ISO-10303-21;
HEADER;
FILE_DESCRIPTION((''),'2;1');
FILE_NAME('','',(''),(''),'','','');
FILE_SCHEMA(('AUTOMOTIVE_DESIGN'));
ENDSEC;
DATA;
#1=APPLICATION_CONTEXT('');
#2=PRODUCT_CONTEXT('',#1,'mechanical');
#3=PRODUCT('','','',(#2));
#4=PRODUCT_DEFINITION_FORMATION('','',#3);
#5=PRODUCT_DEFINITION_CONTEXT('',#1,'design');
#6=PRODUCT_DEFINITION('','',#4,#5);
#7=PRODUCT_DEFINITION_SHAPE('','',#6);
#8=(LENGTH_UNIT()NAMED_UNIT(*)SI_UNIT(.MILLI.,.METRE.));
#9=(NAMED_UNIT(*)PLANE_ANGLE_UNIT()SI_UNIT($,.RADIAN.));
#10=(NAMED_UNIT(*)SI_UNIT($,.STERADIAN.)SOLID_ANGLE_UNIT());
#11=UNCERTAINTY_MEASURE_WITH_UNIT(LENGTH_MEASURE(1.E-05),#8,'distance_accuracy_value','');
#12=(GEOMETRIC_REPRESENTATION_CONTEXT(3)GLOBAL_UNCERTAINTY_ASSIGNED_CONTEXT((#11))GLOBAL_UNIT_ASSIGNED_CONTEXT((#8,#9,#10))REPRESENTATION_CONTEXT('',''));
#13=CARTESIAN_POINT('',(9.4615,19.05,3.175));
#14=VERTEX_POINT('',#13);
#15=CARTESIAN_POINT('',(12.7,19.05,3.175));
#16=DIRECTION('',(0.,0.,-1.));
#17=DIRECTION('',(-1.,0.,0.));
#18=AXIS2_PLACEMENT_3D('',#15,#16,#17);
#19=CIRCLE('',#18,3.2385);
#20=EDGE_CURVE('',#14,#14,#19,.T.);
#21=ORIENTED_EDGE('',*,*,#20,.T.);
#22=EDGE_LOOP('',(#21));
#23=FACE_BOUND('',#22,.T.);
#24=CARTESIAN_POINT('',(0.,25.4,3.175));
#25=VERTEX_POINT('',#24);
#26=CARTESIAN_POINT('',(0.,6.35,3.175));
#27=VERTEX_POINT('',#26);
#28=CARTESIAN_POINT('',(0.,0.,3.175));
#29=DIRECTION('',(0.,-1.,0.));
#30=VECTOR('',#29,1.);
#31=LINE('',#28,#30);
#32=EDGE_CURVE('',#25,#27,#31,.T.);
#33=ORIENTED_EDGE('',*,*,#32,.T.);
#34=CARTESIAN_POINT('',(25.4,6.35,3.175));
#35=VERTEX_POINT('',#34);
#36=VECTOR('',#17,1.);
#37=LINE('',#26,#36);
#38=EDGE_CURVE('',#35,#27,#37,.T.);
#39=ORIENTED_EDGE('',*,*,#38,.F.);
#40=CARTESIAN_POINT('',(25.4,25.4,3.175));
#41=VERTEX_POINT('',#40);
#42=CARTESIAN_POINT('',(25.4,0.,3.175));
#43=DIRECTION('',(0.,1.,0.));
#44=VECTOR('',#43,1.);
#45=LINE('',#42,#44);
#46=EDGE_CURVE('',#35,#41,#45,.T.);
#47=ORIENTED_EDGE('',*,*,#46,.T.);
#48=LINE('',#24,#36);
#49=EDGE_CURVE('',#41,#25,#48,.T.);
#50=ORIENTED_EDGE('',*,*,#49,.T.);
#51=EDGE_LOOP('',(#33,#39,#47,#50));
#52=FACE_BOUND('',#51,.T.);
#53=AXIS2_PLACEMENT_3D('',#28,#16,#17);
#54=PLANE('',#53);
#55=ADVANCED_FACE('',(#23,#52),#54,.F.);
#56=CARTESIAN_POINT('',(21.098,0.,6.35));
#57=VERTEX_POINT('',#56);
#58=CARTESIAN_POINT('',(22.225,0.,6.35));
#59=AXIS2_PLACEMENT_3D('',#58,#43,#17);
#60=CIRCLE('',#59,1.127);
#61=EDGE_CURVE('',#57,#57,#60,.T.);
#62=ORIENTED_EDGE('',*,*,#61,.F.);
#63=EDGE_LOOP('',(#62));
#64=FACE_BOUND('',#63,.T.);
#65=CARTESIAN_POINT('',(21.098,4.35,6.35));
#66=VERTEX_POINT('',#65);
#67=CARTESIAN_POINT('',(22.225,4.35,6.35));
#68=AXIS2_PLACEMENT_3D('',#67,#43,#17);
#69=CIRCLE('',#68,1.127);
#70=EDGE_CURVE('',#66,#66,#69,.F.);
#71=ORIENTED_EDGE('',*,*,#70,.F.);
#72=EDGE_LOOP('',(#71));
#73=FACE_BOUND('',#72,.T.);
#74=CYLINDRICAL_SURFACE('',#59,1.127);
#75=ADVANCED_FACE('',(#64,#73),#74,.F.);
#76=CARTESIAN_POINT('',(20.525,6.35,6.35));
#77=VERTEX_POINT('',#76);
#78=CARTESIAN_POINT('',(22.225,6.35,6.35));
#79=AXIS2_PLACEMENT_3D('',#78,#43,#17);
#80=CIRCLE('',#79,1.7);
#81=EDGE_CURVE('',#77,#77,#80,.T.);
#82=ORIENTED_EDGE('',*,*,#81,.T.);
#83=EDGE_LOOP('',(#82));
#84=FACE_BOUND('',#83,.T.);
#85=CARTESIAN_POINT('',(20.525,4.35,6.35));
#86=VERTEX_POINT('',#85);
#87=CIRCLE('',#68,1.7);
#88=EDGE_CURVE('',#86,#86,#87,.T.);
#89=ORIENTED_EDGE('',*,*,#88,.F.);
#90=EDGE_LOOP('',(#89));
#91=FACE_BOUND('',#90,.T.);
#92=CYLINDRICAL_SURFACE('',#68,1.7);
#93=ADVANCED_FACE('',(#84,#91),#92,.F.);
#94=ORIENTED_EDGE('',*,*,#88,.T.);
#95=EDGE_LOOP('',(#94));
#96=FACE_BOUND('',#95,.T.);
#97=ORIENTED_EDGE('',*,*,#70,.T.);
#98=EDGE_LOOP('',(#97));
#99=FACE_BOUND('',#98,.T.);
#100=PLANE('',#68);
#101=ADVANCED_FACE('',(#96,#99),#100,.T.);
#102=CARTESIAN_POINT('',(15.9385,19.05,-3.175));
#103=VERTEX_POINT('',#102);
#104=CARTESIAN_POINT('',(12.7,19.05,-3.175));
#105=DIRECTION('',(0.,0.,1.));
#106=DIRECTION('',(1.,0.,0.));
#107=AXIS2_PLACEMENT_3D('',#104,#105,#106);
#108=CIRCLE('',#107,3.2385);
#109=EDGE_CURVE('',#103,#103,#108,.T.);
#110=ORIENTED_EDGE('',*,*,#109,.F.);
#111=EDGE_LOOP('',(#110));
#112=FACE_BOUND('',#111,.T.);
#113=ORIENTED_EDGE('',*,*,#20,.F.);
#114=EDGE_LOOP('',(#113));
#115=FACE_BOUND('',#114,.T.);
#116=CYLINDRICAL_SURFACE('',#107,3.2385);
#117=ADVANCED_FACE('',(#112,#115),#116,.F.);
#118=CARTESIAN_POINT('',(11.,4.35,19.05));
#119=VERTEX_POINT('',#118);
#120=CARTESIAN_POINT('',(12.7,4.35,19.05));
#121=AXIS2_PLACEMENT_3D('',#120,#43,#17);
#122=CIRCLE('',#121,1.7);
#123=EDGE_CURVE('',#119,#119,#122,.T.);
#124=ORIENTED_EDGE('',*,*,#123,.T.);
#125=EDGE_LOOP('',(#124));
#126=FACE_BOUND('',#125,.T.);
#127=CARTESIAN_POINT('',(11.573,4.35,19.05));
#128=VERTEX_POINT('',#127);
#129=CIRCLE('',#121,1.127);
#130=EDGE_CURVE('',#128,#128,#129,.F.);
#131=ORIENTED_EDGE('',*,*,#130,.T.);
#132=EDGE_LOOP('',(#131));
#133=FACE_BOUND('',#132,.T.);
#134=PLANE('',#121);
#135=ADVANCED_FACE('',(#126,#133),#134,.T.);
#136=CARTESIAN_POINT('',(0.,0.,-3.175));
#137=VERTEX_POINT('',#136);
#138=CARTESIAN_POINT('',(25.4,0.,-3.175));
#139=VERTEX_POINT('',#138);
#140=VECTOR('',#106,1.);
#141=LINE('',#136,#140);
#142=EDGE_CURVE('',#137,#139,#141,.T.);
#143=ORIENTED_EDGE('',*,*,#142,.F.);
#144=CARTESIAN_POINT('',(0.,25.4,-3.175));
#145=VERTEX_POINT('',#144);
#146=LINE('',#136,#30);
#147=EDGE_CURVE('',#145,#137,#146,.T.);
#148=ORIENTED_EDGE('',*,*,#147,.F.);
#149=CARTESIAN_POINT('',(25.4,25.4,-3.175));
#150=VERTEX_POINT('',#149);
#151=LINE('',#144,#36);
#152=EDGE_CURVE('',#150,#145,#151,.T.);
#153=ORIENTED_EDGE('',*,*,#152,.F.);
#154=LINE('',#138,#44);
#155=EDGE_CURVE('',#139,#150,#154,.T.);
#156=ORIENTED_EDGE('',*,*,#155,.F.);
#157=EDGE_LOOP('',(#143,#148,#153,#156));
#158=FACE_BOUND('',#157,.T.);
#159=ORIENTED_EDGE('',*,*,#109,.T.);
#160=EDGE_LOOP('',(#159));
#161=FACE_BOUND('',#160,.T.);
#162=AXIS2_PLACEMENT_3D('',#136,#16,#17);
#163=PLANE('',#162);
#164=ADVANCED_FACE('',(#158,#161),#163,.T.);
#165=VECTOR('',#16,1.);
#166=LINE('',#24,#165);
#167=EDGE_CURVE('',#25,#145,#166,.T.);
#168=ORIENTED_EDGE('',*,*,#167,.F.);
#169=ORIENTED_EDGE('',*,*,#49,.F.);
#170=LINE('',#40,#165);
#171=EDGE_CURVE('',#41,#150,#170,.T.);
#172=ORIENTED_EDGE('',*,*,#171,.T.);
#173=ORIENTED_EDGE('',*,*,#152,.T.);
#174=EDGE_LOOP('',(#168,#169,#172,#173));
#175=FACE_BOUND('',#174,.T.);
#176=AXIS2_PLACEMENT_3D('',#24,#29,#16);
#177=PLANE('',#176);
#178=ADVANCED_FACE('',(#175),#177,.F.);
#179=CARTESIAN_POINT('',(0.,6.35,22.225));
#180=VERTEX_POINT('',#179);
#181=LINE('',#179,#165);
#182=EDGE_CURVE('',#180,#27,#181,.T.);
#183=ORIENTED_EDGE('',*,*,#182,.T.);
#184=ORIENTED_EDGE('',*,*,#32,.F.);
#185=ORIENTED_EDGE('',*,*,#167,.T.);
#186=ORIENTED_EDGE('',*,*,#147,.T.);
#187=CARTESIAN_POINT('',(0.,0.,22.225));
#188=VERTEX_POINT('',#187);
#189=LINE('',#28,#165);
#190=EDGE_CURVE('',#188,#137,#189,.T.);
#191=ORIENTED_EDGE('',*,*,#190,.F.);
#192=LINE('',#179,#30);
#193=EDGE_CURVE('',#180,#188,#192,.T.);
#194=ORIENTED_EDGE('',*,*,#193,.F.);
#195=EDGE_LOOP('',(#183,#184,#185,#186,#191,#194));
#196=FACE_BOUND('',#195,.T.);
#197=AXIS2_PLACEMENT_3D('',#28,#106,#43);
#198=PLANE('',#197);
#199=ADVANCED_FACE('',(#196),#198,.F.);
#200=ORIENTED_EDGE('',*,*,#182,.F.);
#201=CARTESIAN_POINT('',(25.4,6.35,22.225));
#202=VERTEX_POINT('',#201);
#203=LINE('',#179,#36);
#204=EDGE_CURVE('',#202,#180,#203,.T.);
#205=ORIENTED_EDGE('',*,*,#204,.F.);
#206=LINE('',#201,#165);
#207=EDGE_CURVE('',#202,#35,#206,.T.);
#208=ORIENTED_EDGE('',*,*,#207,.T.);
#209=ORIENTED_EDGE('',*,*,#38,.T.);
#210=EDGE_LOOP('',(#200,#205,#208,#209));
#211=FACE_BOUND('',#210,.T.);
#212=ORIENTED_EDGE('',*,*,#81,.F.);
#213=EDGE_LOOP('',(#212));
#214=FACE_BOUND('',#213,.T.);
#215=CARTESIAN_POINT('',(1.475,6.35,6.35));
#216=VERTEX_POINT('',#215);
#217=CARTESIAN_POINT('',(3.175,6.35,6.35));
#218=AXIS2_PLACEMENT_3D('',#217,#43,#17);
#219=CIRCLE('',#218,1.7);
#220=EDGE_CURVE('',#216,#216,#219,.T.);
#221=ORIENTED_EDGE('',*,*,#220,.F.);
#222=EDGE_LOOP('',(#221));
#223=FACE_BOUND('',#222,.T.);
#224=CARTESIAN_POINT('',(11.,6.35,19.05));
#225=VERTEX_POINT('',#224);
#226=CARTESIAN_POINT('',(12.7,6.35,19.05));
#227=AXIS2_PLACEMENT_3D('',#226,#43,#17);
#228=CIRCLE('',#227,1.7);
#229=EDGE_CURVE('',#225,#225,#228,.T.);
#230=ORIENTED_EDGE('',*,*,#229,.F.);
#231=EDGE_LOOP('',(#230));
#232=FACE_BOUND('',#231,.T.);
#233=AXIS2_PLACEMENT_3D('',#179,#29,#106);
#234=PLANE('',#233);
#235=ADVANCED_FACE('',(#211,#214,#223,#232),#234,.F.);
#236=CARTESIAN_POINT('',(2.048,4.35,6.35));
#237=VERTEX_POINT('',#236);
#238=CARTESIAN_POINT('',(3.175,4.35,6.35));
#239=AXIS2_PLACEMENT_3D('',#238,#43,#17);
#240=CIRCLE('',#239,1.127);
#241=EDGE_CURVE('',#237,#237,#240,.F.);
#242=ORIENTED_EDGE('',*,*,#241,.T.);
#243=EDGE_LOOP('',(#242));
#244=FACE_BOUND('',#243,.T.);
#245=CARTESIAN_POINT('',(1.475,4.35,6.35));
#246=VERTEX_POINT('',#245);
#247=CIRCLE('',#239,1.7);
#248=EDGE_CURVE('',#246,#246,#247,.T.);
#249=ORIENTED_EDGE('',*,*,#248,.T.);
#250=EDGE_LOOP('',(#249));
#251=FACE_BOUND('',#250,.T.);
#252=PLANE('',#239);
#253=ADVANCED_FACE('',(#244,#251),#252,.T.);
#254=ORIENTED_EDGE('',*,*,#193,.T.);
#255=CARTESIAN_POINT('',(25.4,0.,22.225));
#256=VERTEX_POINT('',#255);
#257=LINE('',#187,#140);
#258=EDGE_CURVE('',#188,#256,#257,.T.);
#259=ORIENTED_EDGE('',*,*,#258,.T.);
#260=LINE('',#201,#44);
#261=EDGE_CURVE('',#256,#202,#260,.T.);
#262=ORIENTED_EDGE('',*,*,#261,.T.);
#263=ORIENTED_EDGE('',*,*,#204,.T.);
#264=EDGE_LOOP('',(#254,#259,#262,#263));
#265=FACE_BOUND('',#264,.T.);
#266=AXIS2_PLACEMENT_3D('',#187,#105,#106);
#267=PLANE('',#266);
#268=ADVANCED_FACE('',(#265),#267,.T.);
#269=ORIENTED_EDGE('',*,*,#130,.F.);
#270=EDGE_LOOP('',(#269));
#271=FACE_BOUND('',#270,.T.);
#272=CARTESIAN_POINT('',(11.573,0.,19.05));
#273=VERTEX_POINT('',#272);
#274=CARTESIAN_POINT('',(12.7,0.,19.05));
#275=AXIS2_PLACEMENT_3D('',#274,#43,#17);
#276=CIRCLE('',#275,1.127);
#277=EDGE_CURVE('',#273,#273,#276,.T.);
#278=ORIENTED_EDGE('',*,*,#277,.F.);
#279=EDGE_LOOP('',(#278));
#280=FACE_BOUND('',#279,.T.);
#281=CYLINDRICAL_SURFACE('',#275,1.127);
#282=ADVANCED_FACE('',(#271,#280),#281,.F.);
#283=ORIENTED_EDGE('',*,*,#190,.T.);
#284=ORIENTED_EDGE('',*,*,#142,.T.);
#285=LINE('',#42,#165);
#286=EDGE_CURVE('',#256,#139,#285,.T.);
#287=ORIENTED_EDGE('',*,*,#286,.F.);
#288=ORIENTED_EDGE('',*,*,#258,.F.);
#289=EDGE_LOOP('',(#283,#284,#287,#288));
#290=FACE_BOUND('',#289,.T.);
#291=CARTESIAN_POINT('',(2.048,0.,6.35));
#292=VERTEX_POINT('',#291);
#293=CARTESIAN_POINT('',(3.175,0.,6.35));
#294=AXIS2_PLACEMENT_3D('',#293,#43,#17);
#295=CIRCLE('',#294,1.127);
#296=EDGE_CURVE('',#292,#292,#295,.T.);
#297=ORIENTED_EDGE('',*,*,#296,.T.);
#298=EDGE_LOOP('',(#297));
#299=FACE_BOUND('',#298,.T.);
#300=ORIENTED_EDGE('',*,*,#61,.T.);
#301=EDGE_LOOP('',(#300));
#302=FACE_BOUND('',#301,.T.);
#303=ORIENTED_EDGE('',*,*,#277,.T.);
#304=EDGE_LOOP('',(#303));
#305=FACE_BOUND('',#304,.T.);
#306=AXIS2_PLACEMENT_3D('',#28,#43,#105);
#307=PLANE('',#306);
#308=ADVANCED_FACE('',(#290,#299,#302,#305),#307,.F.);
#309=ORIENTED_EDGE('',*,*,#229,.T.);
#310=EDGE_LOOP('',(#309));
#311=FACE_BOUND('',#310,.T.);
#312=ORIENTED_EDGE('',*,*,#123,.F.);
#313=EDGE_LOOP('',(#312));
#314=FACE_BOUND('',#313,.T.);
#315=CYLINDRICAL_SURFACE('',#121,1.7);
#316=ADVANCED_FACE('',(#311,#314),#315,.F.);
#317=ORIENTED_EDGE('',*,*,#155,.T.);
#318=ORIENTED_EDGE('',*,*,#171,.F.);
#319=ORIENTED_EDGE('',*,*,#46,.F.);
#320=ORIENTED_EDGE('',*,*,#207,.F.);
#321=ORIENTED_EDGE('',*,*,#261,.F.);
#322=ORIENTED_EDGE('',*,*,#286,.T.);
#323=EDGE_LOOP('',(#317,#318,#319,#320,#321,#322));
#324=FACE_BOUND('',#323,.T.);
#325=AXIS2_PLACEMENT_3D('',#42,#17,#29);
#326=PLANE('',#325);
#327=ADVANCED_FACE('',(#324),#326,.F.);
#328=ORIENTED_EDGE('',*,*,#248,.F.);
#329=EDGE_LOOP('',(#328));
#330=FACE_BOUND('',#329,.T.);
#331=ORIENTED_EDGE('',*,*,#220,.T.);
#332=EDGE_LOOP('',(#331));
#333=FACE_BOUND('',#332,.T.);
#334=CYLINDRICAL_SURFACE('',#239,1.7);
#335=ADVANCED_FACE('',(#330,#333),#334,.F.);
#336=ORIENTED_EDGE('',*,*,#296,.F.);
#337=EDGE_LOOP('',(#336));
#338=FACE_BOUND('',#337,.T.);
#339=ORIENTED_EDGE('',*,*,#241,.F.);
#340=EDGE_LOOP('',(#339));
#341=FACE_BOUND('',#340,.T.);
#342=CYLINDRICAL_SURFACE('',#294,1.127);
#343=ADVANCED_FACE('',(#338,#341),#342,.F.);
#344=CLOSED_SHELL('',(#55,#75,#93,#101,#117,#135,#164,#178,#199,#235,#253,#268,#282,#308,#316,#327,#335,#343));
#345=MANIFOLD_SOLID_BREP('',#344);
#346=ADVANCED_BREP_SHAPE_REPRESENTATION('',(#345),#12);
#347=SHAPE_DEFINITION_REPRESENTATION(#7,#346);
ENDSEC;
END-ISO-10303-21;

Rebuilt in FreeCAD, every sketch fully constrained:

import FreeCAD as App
import Part
import Sketcher
from FreeCAD import Vector
Q = App.Units.Quantity


def add_polygon(sketch, points):
    """Adds a closed chain of lines whose ends are joined by coincident constraints."""
    first, n = sketch.GeometryCount, len(points)
    for a, b in zip(points, points[1:] + points[:1]):
        sketch.addGeometry(Part.LineSegment(App.Vector(*a, 0), App.Vector(*b, 0)), False)
    for i in range(n):
        sketch.addConstraint(Sketcher.Constraint("Coincident", first + i, 2, first + (i + 1) % n, 1))

doc = App.newDocument("Part")
params = doc.addObject("Spreadsheet::Sheet", "Params")
for row, (alias, value) in enumerate([
    ("sketch1_width", "1 in"),
    ("pad1_length", "0.25 in"),
    ("sketch2_width", "1 in"),
    ("sketch2_height", "0.25 in"),
    ("pad2_length", "0.75 in"),
    ("pocket2_length", "2 mm"),
    ("sketch5_diameter", "0.255 in"),
], start=1):
    params.set(f"A{row}", alias)
    params.set(f"B{row}", "=" + value)
    params.setAlias(f"B{row}", alias)

body = doc.addObject("PartDesign::Body", "Body")

sketch1 = doc.addObject("Sketcher::SketchObject", "Sketch")
body.addObject(sketch1)
sketch1.AttachmentSupport = (doc.XY_Plane, [""])
sketch1.MapMode = "FlatFace"
add_polygon(sketch1, [(0, 25), (0, 0), (25, 0), (25, 25)])
sketch1.addConstraint([
    Sketcher.Constraint("Vertical", 0),
    Sketcher.Constraint("Horizontal", 1),
    Sketcher.Constraint("Vertical", 2),
    Sketcher.Constraint("Horizontal", 3),
    Sketcher.Constraint("Coincident", 0, 2, -1, 1),
    Sketcher.Constraint("Equal", 3, 0),
    Sketcher.Constraint("DistanceX", 1, 1, 1, 2, Q("1 in")),
])
sketch1.setExpression("Constraints[10]", "Params.sketch1_width")
pad1 = doc.addObject("PartDesign::Pad", "Pad")
body.addObject(pad1)
pad1.Profile = sketch1
pad1.setExpression("Length", "Params.pad1_length")
pad1.Midplane = True

sketch2 = doc.addObject("Sketcher::SketchObject", "Sketch001")
body.addObject(sketch2)
sketch2.AttachmentSupport = (doc.XY_Plane, [""])
sketch2.MapMode = "FlatFace"
sketch2.AttachmentOffset = App.Placement(Vector(0, 0, 0.125 * 25.4), App.Rotation())
add_polygon(sketch2, [(0, 6), (0, 0), (25, 0), (25, 6)])
sketch2.addConstraint([
    Sketcher.Constraint("Vertical", 0),
    Sketcher.Constraint("Horizontal", 1),
    Sketcher.Constraint("Vertical", 2),
    Sketcher.Constraint("Horizontal", 3),
    Sketcher.Constraint("Coincident", 0, 2, -1, 1),
    Sketcher.Constraint("DistanceX", 1, 1, 1, 2, Q("1 in")),
    Sketcher.Constraint("DistanceY", 0, 2, 0, 1, Q("0.25 in")),
])
sketch2.setExpression("Constraints[9]", "Params.sketch2_width")
sketch2.setExpression("Constraints[10]", "Params.sketch2_height")
pad2 = doc.addObject("PartDesign::Pad", "Pad001")
body.addObject(pad2)
pad2.Profile = sketch2
pad2.setExpression("Length", "Params.pad2_length")

sketch3 = doc.addObject("Sketcher::SketchObject", "Sketch002")
body.addObject(sketch3)
sketch3.AttachmentSupport = (doc.XZ_Plane, [""])
sketch3.MapMode = "FlatFace"
sketch3.AttachmentOffset = App.Placement(Vector(0, 0, -0.25 * 25.4), App.Rotation())
sketch3.addGeometry([
    Part.Circle(Vector(3.2, 6.3, 0), Vector(0, 0, 1), 1.1),
    Part.Circle(Vector(22.2, 6.3, 0), Vector(0, 0, 1), 1.1),
    Part.Circle(Vector(12.7, 19.1, 0), Vector(0, 0, 1), 1.1),
], False)
sketch3.addConstraint([
    Sketcher.Constraint("Equal", 0, 1),
    Sketcher.Constraint("Equal", 1, 2),
    Sketcher.Constraint("Horizontal", 0, 3, 1, 3),
    Sketcher.Constraint("DistanceX", -1, 1, 2, 3, Q("0.5 in")),
    Sketcher.Constraint("DistanceY", 0, 3, 2, 3, Q("0.5 in")),
    Sketcher.Constraint("Diameter", 0, 2.254),
    Sketcher.Constraint("DistanceY", -1, 1, 0, 3, Q("0.25 in")),
    Sketcher.Constraint("DistanceX", 0, 3, 1, 3, Q("0.75 in")),
    Sketcher.Constraint("DistanceX", -1, 1, 0, 3, Q("0.125 in")),
])
pocket1 = doc.addObject("PartDesign::Pocket", "Pocket")
body.addObject(pocket1)
pocket1.Profile = sketch3
pocket1.Type = "ThroughAll"
pocket1.Reversed = True

sketch4 = doc.addObject("Sketcher::SketchObject", "Sketch003")
body.addObject(sketch4)
sketch4.AttachmentSupport = (doc.XZ_Plane, [""])
sketch4.MapMode = "FlatFace"
sketch4.AttachmentOffset = App.Placement(Vector(0, 0, -0.25 * 25.4), App.Rotation())
sketch4.addGeometry([
    Part.Circle(Vector(3.2, 6.3, 0), Vector(0, 0, 1), 1.7),
    Part.Circle(Vector(22.2, 6.3, 0), Vector(0, 0, 1), 1.7),
    Part.Circle(Vector(12.7, 19.1, 0), Vector(0, 0, 1), 1.7),
], False)
sketch4.addConstraint([
    Sketcher.Constraint("Equal", 0, 1),
    Sketcher.Constraint("Equal", 1, 2),
    Sketcher.Constraint("Horizontal", 0, 3, 1, 3),
    Sketcher.Constraint("DistanceX", -1, 1, 2, 3, Q("0.5 in")),
    Sketcher.Constraint("DistanceY", 0, 3, 2, 3, Q("0.5 in")),
    Sketcher.Constraint("Diameter", 0, 3.4),
    Sketcher.Constraint("DistanceY", -1, 1, 0, 3, Q("0.25 in")),
    Sketcher.Constraint("DistanceX", 0, 3, 1, 3, Q("0.75 in")),
    Sketcher.Constraint("DistanceX", -1, 1, 0, 3, Q("0.125 in")),
])
pocket2 = doc.addObject("PartDesign::Pocket", "Pocket001")
body.addObject(pocket2)
pocket2.Profile = sketch4
pocket2.setExpression("Length", "Params.pocket2_length")
pocket2.Reversed = True

sketch5 = doc.addObject("Sketcher::SketchObject", "Sketch004")
body.addObject(sketch5)
sketch5.AttachmentSupport = (doc.XY_Plane, [""])
sketch5.MapMode = "FlatFace"
sketch5.AttachmentOffset = App.Placement(Vector(0, 0, 0.125 * 25.4), App.Rotation())
sketch5.addGeometry(Part.Circle(Vector(12.7, 19.1, 0), Vector(0, 0, 1), 3.2), False)
sketch5.addConstraint([
    Sketcher.Constraint("Diameter", 0, Q("0.255 in")),
    Sketcher.Constraint("DistanceX", -1, 1, 0, 3, Q("0.5 in")),
    Sketcher.Constraint("DistanceY", -1, 1, 0, 3, Q("0.75 in")),
])
sketch5.setExpression("Constraints[0]", "Params.sketch5_diameter")
pocket3 = doc.addObject("PartDesign::Pocket", "Pocket002")
body.addObject(pocket3)
pocket3.Profile = sketch5
pocket3.Type = "ThroughAll"
pocket3.Midplane = True

doc.recompute()
